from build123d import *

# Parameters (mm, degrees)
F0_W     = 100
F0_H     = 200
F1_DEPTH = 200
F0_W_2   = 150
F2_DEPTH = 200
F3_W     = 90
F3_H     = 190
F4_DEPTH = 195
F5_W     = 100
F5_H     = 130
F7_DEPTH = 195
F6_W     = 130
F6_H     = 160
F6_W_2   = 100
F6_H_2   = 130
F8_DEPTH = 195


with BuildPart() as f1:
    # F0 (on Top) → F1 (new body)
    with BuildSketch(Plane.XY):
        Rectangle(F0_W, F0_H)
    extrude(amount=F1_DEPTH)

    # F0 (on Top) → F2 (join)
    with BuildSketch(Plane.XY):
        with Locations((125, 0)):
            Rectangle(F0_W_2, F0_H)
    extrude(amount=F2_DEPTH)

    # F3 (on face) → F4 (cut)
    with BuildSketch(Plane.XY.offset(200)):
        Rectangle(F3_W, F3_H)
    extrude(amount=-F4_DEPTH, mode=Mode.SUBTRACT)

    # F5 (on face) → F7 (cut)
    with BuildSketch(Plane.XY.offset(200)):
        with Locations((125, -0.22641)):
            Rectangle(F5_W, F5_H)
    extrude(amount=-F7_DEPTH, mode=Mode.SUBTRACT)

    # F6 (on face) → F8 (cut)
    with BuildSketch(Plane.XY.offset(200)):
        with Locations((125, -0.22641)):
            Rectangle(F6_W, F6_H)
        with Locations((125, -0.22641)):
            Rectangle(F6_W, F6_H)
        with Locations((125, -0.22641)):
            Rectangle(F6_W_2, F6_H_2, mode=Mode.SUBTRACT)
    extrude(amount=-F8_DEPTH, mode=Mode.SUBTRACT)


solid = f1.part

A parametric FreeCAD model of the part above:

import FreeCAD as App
import Part
import Sketcher
Q = App.Units.Quantity

doc = App.newDocument("Part")
body = doc.addObject("PartDesign::Body", "Body")

# Sketch on XY plane
sketch1 = doc.addObject("Sketcher::SketchObject", "Sketch")
body.addObject(sketch1)
sketch1.AttachmentSupport = (doc.XY_Plane, [""])
sketch1.MapMode = "FlatFace"
sketch1.addGeometry([
    Part.LineSegment(App.Vector(-50, 100, 0), App.Vector(-50, -100, 0)),
    Part.LineSegment(App.Vector(-50, -100, 0), App.Vector(50, -100, 0)),
    Part.LineSegment(App.Vector(50, -100, 0), App.Vector(50, 100, 0)),
    Part.LineSegment(App.Vector(50, 100, 0), App.Vector(-50, 100, 0)),
], False)
sketch1.addConstraint([
    Sketcher.Constraint("Coincident", 0, 2, 1, 1),
    Sketcher.Constraint("Coincident", 1, 2, 2, 1),
    Sketcher.Constraint("Coincident", 2, 2, 3, 1),
    Sketcher.Constraint("Coincident", 3, 2, 0, 1),
    Sketcher.Constraint("Vertical", 0),
    Sketcher.Constraint("Horizontal", 1),
    Sketcher.Constraint("Vertical", 2),
    Sketcher.Constraint("Horizontal", 3),
    Sketcher.Constraint("Symmetric", 0, 2, 2, 2, -1, 1),
    Sketcher.Constraint("DistanceX", 1, 1, 1, 2, Q("100 mm")),
    Sketcher.Constraint("DistanceY", 0, 2, 0, 1, Q("200 mm")),
])
pad1 = doc.addObject("PartDesign::Pad", "Pad")
body.addObject(pad1)
pad1.Profile = sketch1
pad1.Length = 200

# Sketch on XY plane
sketch2 = doc.addObject("Sketcher::SketchObject", "Sketch001")
body.addObject(sketch2)
sketch2.AttachmentSupport = (doc.XY_Plane, [""])
sketch2.MapMode = "FlatFace"
sketch2.addGeometry([
    Part.LineSegment(App.Vector(50, 100, 0), App.Vector(50, -100, 0)),
    Part.LineSegment(App.Vector(50, -100, 0), App.Vector(200, -100, 0)),
    Part.LineSegment(App.Vector(200, -100, 0), App.Vector(200, 100, 0)),
    Part.LineSegment(App.Vector(200, 100, 0), App.Vector(50, 100, 0)),
], False)
sketch2.addConstraint([
    Sketcher.Constraint("Coincident", 0, 2, 1, 1),
    Sketcher.Constraint("Coincident", 1, 2, 2, 1),
    Sketcher.Constraint("Coincident", 2, 2, 3, 1),
    Sketcher.Constraint("Coincident", 3, 2, 0, 1),
    Sketcher.Constraint("Vertical", 0),
    Sketcher.Constraint("Horizontal", 1),
    Sketcher.Constraint("Vertical", 2),
    Sketcher.Constraint("Horizontal", 3),
    Sketcher.Constraint("DistanceX", 1, 1, 1, 2, Q("150 mm")),
    Sketcher.Constraint("DistanceY", 0, 2, 0, 1, Q("200 mm")),
    Sketcher.Constraint("DistanceX", -1, 1, 0, 2, Q("50 mm")),
    Sketcher.Constraint("DistanceY", 0, 2, -1, 1, Q("100 mm")),
])
pad2 = doc.addObject("PartDesign::Pad", "Pad001")
body.addObject(pad2)
pad2.Profile = sketch2
pad2.Length = 200

# Sketch on XY plane
sketch3 = doc.addObject("Sketcher::SketchObject", "Sketch002")
body.addObject(sketch3)
sketch3.AttachmentSupport = (doc.XY_Plane, [""])
sketch3.MapMode = "FlatFace"
sketch3.AttachmentOffset = App.Placement(App.Vector(0, 0, 200), App.Rotation())
sketch3.addGeometry([
    Part.LineSegment(App.Vector(-45, 95, 0), App.Vector(-45, -95, 0)),
    Part.LineSegment(App.Vector(-45, -95, 0), App.Vector(45, -95, 0)),
    Part.LineSegment(App.Vector(45, -95, 0), App.Vector(45, 95, 0)),
    Part.LineSegment(App.Vector(45, 95, 0), App.Vector(-45, 95, 0)),
], False)
sketch3.addConstraint([
    Sketcher.Constraint("Coincident", 0, 2, 1, 1),
    Sketcher.Constraint("Coincident", 1, 2, 2, 1),
    Sketcher.Constraint("Coincident", 2, 2, 3, 1),
    Sketcher.Constraint("Coincident", 3, 2, 0, 1),
    Sketcher.Constraint("Vertical", 0),
    Sketcher.Constraint("Horizontal", 1),
    Sketcher.Constraint("Vertical", 2),
    Sketcher.Constraint("Horizontal", 3),
    Sketcher.Constraint("Symmetric", 0, 2, 2, 2, -1, 1),
    Sketcher.Constraint("DistanceX", 1, 1, 1, 2, Q("90 mm")),
    Sketcher.Constraint("DistanceY", 0, 2, 0, 1, Q("190 mm")),
])
pocket1 = doc.addObject("PartDesign::Pocket", "Pocket")
body.addObject(pocket1)
pocket1.Profile = sketch3
pocket1.Length = 195

# Sketch on XY plane
sketch4 = doc.addObject("Sketcher::SketchObject", "Sketch003")
body.addObject(sketch4)
sketch4.AttachmentSupport = (doc.XY_Plane, [""])
sketch4.MapMode = "FlatFace"
sketch4.AttachmentOffset = App.Placement(App.Vector(0, 0, 200), App.Rotation())
sketch4.addGeometry([
    Part.LineSegment(App.Vector(75, 64.77359, 0), App.Vector(75, -65.22641, 0)),
    Part.LineSegment(App.Vector(75, -65.22641, 0), App.Vector(175, -65.22641, 0)),
    Part.LineSegment(App.Vector(175, -65.22641, 0), App.Vector(175, 64.77359, 0)),
    Part.LineSegment(App.Vector(175, 64.77359, 0), App.Vector(75, 64.77359, 0)),
], False)
sketch4.addConstraint([
    Sketcher.Constraint("Coincident", 0, 2, 1, 1),
    Sketcher.Constraint("Coincident", 1, 2, 2, 1),
    Sketcher.Constraint("Coincident", 2, 2, 3, 1),
    Sketcher.Constraint("Coincident", 3, 2, 0, 1),
    Sketcher.Constraint("Vertical", 0),
    Sketcher.Constraint("Horizontal", 1),
    Sketcher.Constraint("Vertical", 2),
    Sketcher.Constraint("Horizontal", 3),
    Sketcher.Constraint("DistanceX", 1, 1, 1, 2, Q("100 mm")),
    Sketcher.Constraint("DistanceY", 0, 2, 0, 1, Q("130 mm")),
    Sketcher.Constraint("DistanceX", -1, 1, 0, 2, Q("75 mm")),
    Sketcher.Constraint("DistanceY", 0, 2, -1, 1, Q("65.22641 mm")),
])
pocket2 = doc.addObject("PartDesign::Pocket", "Pocket001")
body.addObject(pocket2)
pocket2.Profile = sketch4
pocket2.Length = 195

# Sketch on XY plane
sketch5 = doc.addObject("Sketcher::SketchObject", "Sketch004")
body.addObject(sketch5)
sketch5.AttachmentSupport = (doc.XY_Plane, [""])
sketch5.MapMode = "FlatFace"
sketch5.AttachmentOffset = App.Placement(App.Vector(0, 0, 200), App.Rotation())
sketch5.addGeometry([
    Part.LineSegment(App.Vector(60, 79.77359, 0), App.Vector(60, -80.22641, 0)),  # 0
    Part.LineSegment(App.Vector(60, -80.22641, 0), App.Vector(190, -80.22641, 0)),  # 1
    Part.LineSegment(App.Vector(190, -80.22641, 0), App.Vector(190, 79.77359, 0)),  # 2
    Part.LineSegment(App.Vector(190, 79.77359, 0), App.Vector(60, 79.77359, 0)),  # 3
    Part.LineSegment(App.Vector(175, -65.22641, 0), App.Vector(75, -65.22641, 0)),  # 4
    Part.LineSegment(App.Vector(75, -65.22641, 0), App.Vector(75, 64.77359, 0)),  # 5
    Part.LineSegment(App.Vector(75, 64.77359, 0), App.Vector(175, 64.77359, 0)),  # 6
    Part.LineSegment(App.Vector(175, 64.77359, 0), App.Vector(175, -65.22641, 0)),  # 7
], False)
sketch5.addConstraint([
    Sketcher.Constraint("Coincident", 0, 2, 1, 1),
    Sketcher.Constraint("Coincident", 1, 2, 2, 1),
    Sketcher.Constraint("Coincident", 2, 2, 3, 1),
    Sketcher.Constraint("Coincident", 3, 2, 0, 1),
    Sketcher.Constraint("Coincident", 4, 2, 5, 1),
    Sketcher.Constraint("Coincident", 5, 2, 6, 1),
    Sketcher.Constraint("Coincident", 6, 2, 7, 1),
    Sketcher.Constraint("Coincident", 7, 2, 4, 1),
    Sketcher.Constraint("Vertical", 0),
    Sketcher.Constraint("Horizontal", 1),
    Sketcher.Constraint("Vertical", 2),
    Sketcher.Constraint("Horizontal", 3),
    Sketcher.Constraint("Horizontal", 4),
    Sketcher.Constraint("Vertical", 5),
    Sketcher.Constraint("Horizontal", 6),
    Sketcher.Constraint("Vertical", 7),
    Sketcher.Constraint("Equal", 3, 5),
    Sketcher.Constraint("DistanceX", 1, 1, 1, 2, Q("130 mm")),
    Sketcher.Constraint("DistanceX", 4, 2, 4, 1, Q("100 mm")),
    Sketcher.Constraint("DistanceY", 0, 2, 0, 1, Q("160 mm")),
    Sketcher.Constraint("DistanceX", -1, 1, 0, 2, Q("60 mm")),
    Sketcher.Constraint("DistanceX", -1, 1, 4, 2, Q("75 mm")),
    Sketcher.Constraint("DistanceY", 0, 2, 4, 2, Q("15 mm")),
    Sketcher.Constraint("DistanceY", 0, 2, -1, 1, Q("80.22641 mm")),
])
pocket3 = doc.addObject("PartDesign::Pocket", "Pocket002")
body.addObject(pocket3)
pocket3.Profile = sketch5
pocket3.Length = 195

doc.recompute()
